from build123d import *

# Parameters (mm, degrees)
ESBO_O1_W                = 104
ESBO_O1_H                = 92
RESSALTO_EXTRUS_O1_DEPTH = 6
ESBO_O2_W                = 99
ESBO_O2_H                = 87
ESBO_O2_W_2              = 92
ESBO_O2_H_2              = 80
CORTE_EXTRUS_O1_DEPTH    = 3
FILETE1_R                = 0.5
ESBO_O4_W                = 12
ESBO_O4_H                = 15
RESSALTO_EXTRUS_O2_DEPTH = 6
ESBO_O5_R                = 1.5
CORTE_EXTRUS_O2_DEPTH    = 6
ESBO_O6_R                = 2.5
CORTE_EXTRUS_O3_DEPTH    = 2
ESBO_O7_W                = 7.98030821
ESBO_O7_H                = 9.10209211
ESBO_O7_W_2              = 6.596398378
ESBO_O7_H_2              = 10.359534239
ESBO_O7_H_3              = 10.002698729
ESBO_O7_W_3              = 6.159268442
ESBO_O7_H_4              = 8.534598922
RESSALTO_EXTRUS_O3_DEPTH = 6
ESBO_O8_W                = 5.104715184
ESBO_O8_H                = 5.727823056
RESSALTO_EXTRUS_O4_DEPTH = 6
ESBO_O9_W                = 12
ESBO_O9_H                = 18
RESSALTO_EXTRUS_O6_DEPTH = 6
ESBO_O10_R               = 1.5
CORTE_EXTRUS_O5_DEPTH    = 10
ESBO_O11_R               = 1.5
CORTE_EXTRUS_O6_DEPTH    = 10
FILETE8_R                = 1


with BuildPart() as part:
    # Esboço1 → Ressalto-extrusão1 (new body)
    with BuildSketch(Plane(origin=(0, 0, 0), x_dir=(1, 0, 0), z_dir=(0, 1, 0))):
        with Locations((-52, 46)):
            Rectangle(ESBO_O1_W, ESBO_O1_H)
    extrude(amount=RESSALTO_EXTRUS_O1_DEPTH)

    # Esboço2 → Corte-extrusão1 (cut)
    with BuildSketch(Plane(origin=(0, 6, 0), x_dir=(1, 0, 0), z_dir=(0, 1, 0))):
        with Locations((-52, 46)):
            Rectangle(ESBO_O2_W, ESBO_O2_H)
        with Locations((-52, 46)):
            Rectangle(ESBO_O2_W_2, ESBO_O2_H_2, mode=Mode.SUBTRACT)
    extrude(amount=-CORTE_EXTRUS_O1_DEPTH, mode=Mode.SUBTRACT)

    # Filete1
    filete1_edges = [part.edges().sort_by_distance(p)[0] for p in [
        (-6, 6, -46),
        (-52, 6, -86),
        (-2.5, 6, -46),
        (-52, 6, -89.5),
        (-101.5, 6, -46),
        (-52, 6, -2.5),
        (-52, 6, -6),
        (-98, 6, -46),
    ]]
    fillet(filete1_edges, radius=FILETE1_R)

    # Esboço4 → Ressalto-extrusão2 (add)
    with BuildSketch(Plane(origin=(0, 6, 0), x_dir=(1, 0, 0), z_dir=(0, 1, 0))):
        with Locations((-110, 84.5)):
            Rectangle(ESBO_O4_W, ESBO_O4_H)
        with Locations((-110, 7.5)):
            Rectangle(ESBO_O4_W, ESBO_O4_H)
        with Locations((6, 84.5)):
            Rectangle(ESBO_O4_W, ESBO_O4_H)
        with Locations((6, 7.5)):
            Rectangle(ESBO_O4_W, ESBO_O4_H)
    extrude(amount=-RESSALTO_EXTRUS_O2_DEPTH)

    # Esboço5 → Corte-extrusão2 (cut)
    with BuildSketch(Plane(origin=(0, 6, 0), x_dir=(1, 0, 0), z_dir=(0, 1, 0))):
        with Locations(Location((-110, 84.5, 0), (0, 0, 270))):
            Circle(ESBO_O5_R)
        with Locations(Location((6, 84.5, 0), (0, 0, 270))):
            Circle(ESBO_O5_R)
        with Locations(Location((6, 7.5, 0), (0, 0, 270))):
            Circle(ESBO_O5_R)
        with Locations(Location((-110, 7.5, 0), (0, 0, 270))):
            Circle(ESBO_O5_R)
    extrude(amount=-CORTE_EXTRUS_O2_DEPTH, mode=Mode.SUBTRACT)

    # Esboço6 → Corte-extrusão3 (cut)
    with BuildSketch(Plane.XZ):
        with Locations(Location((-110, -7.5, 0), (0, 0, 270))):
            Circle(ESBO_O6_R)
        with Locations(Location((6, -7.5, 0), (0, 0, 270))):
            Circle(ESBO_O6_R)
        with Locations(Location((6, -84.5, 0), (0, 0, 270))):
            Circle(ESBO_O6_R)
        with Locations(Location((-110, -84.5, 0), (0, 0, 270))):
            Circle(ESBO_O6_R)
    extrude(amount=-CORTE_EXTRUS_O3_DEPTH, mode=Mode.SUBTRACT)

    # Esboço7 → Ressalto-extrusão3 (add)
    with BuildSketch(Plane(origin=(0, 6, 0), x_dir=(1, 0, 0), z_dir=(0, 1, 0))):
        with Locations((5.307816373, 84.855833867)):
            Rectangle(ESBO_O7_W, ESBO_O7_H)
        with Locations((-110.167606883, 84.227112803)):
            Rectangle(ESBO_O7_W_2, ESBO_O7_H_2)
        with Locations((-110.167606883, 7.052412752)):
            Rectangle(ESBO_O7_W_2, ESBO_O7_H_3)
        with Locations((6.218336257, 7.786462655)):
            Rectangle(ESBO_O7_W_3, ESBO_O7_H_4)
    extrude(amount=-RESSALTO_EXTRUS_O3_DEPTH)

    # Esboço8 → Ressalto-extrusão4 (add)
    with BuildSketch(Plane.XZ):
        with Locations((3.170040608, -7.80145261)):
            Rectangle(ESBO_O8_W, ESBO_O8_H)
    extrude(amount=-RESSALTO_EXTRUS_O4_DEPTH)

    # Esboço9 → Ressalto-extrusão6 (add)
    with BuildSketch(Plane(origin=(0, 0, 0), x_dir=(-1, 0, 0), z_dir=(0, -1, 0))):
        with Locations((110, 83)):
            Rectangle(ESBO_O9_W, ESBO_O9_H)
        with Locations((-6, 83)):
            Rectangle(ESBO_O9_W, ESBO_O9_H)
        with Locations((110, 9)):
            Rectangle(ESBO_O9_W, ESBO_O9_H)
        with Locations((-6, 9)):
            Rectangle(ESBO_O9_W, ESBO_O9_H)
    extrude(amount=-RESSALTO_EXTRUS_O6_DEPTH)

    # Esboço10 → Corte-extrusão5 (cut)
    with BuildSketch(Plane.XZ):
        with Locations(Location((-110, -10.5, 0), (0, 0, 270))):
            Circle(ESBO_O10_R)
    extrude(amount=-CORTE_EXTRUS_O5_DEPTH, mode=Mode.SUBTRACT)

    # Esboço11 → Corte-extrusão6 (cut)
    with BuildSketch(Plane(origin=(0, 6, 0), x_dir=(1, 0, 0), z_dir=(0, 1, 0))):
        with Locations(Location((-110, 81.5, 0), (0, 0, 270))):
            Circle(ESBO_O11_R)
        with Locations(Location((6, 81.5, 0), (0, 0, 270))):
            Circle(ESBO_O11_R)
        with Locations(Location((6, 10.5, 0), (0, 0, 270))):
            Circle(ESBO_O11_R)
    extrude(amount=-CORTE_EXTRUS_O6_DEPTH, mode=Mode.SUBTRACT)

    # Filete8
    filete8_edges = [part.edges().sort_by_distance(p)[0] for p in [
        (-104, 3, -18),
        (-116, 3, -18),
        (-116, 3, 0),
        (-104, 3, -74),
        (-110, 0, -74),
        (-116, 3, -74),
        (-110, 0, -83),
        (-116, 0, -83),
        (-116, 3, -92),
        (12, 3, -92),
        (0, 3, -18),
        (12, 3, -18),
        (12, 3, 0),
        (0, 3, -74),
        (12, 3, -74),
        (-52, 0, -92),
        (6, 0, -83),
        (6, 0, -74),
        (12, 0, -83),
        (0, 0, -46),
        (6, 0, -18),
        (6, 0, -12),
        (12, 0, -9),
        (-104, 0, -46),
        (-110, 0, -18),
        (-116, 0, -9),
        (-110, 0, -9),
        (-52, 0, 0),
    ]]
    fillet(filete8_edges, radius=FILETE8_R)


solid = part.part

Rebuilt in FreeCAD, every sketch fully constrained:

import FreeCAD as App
import Part
import Sketcher

V = App.Vector


def edges_at(feature, points):
    """Names of the edges that pass closest to the given points."""
    edges = feature.Shape.Edges
    near = lambda p: min(range(len(edges)), key=lambda i: edges[i].distToShape(Part.Vertex(*p))[0])
    return sorted({f"Edge{near(p) + 1}" for p in points})


def add_polygon(sketch, points):
    """Adds a closed chain of lines whose ends are joined by coincident constraints."""
    first, n = sketch.GeometryCount, len(points)
    for a, b in zip(points, points[1:] + points[:1]):
        sketch.addGeometry(Part.LineSegment(App.Vector(*a, 0), App.Vector(*b, 0)), False)
    for i in range(n):
        sketch.addConstraint(Sketcher.Constraint("Coincident", first + i, 2, first + (i + 1) % n, 1))

doc = App.newDocument("Part")
body = doc.addObject("PartDesign::Body", "Body")

# Sketch on XZ plane
sketch1 = body.newObject("Sketcher::SketchObject", "Sketch")
sketch1.AttachmentSupport = (doc.getObject("XZ_Plane"), [""])
sketch1.MapMode = "FlatFace"
add_polygon(sketch1, [(-104, -92), (-104, 0), (0, 0), (0, -92)])  # lines 0-3
sketch1.addConstraint([
    Sketcher.Constraint("Vertical", 0),
    Sketcher.Constraint("Horizontal", 1),
    Sketcher.Constraint("Vertical", 2),
    Sketcher.Constraint("Horizontal", 3),
    Sketcher.Constraint("Coincident", 1, 2, -1, 1),
    Sketcher.Constraint("DistanceX", 1, 1, 1, 2, 104.0),
    Sketcher.Constraint("DistanceY", 0, 1, 0, 2, 92.0),
])
pad1 = body.newObject("PartDesign::Pad", "Pad")
pad1.Profile = sketch1
pad1.Length = 6
pad1.Reversed = True

# Sketch on XZ plane
sketch2 = body.newObject("Sketcher::SketchObject", "Sketch001")
sketch2.AttachmentSupport = (doc.getObject("XZ_Plane"), [""])
sketch2.MapMode = "FlatFace"
sketch2.AttachmentOffset = App.Placement(V(0, 0, -6), App.Rotation())
add_polygon(sketch2, [(-101.5, -89.5), (-101.5, -2.5), (-2.5, -2.5), (-2.5, -89.5)])  # lines 0-3
add_polygon(sketch2, [(-6, -6), (-98, -6), (-98, -86), (-6, -86)])  # lines 4-7
sketch2.addConstraint([
    Sketcher.Constraint("Vertical", 0),
    Sketcher.Constraint("Horizontal", 1),
    Sketcher.Constraint("Vertical", 2),
    Sketcher.Constraint("Horizontal", 3),
    Sketcher.Constraint("Horizontal", 4),
    Sketcher.Constraint("Vertical", 5),
    Sketcher.Constraint("Horizontal", 6),
    Sketcher.Constraint("Vertical", 7),
    Sketcher.Constraint("DistanceX", 1, 1, 1, 2, 99.0),
    Sketcher.Constraint("DistanceX", 4, 2, 4, 1, 92.0),
    Sketcher.Constraint("DistanceY", 0, 1, 0, 2, 87.0),
    Sketcher.Constraint("DistanceY", 5, 2, 5, 1, 80.0),
    Sketcher.Constraint("DistanceX", 4, 2, -1, 1, 98.0),
    Sketcher.Constraint("DistanceY", 4, 2, -1, 1, 6.0),
    Sketcher.Constraint("DistanceX", 0, 2, -1, 1, 101.5),
    Sketcher.Constraint("DistanceY", 0, 2, -1, 1, 2.5),
])
pocket1 = body.newObject("PartDesign::Pocket", "Pocket")
pocket1.Profile = sketch2
pocket1.Length = 3
pocket1.Reversed = True
doc.recompute()

fillet = body.newObject("PartDesign::Fillet", "Fillet")
fillet.Base = (pocket1, edges_at(pocket1, [
    (-6, 6, -46),
    (-52, 6, -86),
    (-2.5, 6, -46),
    (-52, 6, -89.5),
    (-101.5, 6, -46),
    (-52, 6, -2.5),
    (-52, 6, -6),
    (-98, 6, -46),
]))
fillet.Radius = 0.5

# Sketch on XZ plane
sketch3 = body.newObject("Sketcher::SketchObject", "Sketch002")
sketch3.AttachmentSupport = (doc.getObject("XZ_Plane"), [""])
sketch3.MapMode = "FlatFace"
sketch3.AttachmentOffset = App.Placement(V(0, 0, -6), App.Rotation())
add_polygon(sketch3, [(-116, -92), (-116, -77), (-104, -77), (-104, -92)])  # lines 0-3
add_polygon(sketch3, [(-116, -15), (-116, 0), (-104, 0), (-104, -15)])  # lines 4-7
add_polygon(sketch3, [(0, -92), (0, -77), (12, -77), (12, -92)])  # lines 8-11
add_polygon(sketch3, [(0, -15), (0, 0), (12, 0), (12, -15)])  # lines 12-15
sketch3.addConstraint([
    Sketcher.Constraint("Vertical", 0),
    Sketcher.Constraint("Horizontal", 1),
    Sketcher.Constraint("Vertical", 2),
    Sketcher.Constraint("Horizontal", 3),
    Sketcher.Constraint("Vertical", 4),
    Sketcher.Constraint("Horizontal", 5),
    Sketcher.Constraint("Vertical", 6),
    Sketcher.Constraint("Horizontal", 7),
    Sketcher.Constraint("Vertical", 8),
    Sketcher.Constraint("Horizontal", 9),
    Sketcher.Constraint("Vertical", 10),
    Sketcher.Constraint("Horizontal", 11),
    Sketcher.Constraint("Vertical", 12),
    Sketcher.Constraint("Horizontal", 13),
    Sketcher.Constraint("Vertical", 14),
    Sketcher.Constraint("Horizontal", 15),
    Sketcher.Constraint("Coincident", 12, 2, -1, 1),
    Sketcher.Constraint("PointOnObject", 4, 2, -1),
    Sketcher.Constraint("PointOnObject", 8, 2, -2),
    Sketcher.Constraint("Horizontal", 1, 2, 8, 2),
    Sketcher.Constraint("Horizontal", 3, 2, 10, 2),
    Sketcher.Constraint("Horizontal", 7, 2, 14, 2),
    Sketcher.Constraint("Vertical", 3, 2, 4, 2),
    Sketcher.Constraint("Vertical", 2, 2, 5, 2),
    Sketcher.Constraint("Vertical", 10, 2, 13, 2),
    Sketcher.Constraint("Equal", 7, 9),
    Sketcher.Constraint("Equal", 2, 4),
    Sketcher.Constraint("DistanceX", 1, 1, 1, 2, 12.0),
    Sketcher.Constraint("DistanceY", 0, 1, 0, 2, 15.0),
    Sketcher.Constraint("DistanceX", 0, 2, -1, 1, 116.0),
    Sketcher.Constraint("DistanceY", 0, 2, -1, 1, 77.0),
])
pad2 = body.newObject("PartDesign::Pad", "Pad001")
pad2.Profile = sketch3
pad2.Length = 6

# Sketch on XZ plane
sketch4 = body.newObject("Sketcher::SketchObject", "Sketch003")
sketch4.AttachmentSupport = (doc.getObject("XZ_Plane"), [""])
sketch4.MapMode = "FlatFace"
sketch4.AttachmentOffset = App.Placement(V(0, 0, -6), App.Rotation())
sketch4.addGeometry([
    Part.Circle(V(-110, -84.5, 0), V(0, 0, 1), 1.5),
    Part.Circle(V(6, -84.5, 0), V(0, 0, 1), 1.5),
    Part.Circle(V(6, -7.5, 0), V(0, 0, 1), 1.5),
    Part.Circle(V(-110, -7.5, 0), V(0, 0, 1), 1.5),
], False)
sketch4.addConstraint([
    Sketcher.Constraint("Equal", 0, 1),
    Sketcher.Constraint("Equal", 1, 2),
    Sketcher.Constraint("Equal", 2, 3),
    Sketcher.Constraint("Horizontal", 0, 3, 1, 3),
    Sketcher.Constraint("Horizontal", 2, 3, 3, 3),
    Sketcher.Constraint("Vertical", 1, 3, 2, 3),
    Sketcher.Constraint("Vertical", 0, 3, 3, 3),
    Sketcher.Constraint("Diameter", 0, 3.0),
    Sketcher.Constraint("DistanceX", 0, 3, -1, 1, 110.0),
    Sketcher.Constraint("DistanceX", -1, 1, 1, 3, 6.0),
    Sketcher.Constraint("DistanceY", 1, 3, 2, 3, 77.0),
    Sketcher.Constraint("DistanceY", 0, 3, -1, 1, 84.5),
])
pocket2 = body.newObject("PartDesign::Pocket", "Pocket001")
pocket2.Profile = sketch4
pocket2.Length = 6
pocket2.Reversed = True

# Sketch on XZ plane
sketch5 = body.newObject("Sketcher::SketchObject", "Sketch004")
sketch5.AttachmentSupport = (doc.getObject("XZ_Plane"), [""])
sketch5.MapMode = "FlatFace"
sketch5.addGeometry([
    Part.Circle(V(-110, -7.5, 0), V(0, 0, 1), 2.5),
    Part.Circle(V(6, -7.5, 0), V(0, 0, 1), 2.5),
    Part.Circle(V(6, -84.5, 0), V(0, 0, 1), 2.5),
    Part.Circle(V(-110, -84.5, 0), V(0, 0, 1), 2.5),
], False)
sketch5.addConstraint([
    Sketcher.Constraint("Equal", 0, 1),
    Sketcher.Constraint("Equal", 1, 2),
    Sketcher.Constraint("Equal", 2, 3),
    Sketcher.Constraint("Horizontal", 0, 3, 1, 3),
    Sketcher.Constraint("Horizontal", 2, 3, 3, 3),
    Sketcher.Constraint("Vertical", 1, 3, 2, 3),
    Sketcher.Constraint("Vertical", 0, 3, 3, 3),
    Sketcher.Constraint("Diameter", 0, 5.0),
    Sketcher.Constraint("DistanceX", 0, 3, -1, 1, 110.0),
    Sketcher.Constraint("DistanceX", -1, 1, 1, 3, 6.0),
    Sketcher.Constraint("DistanceY", 2, 3, 1, 3, 77.0),
    Sketcher.Constraint("DistanceY", 0, 3, -1, 1, 7.5),
])
pocket3 = body.newObject("PartDesign::Pocket", "Pocket002")
pocket3.Profile = sketch5
pocket3.Length = 2

# Sketch on XZ plane
sketch6 = body.newObject("Sketcher::SketchObject", "Sketch005")
sketch6.AttachmentSupport = (doc.getObject("XZ_Plane"), [""])
sketch6.MapMode = "FlatFace"
sketch6.AttachmentOffset = App.Placement(V(0, 0, -6), App.Rotation())
add_polygon(sketch6, [(1.317662, -89.40688), (1.317662, -80.304788), (9.29797, -80.304788), (9.29797, -89.40688)])  # lines 0-3
add_polygon(sketch6, [(-113.465806, -89.40688), (-113.465806, -79.047346), (-106.869408, -79.047346), (-106.869408, -89.40688)])  # lines 4-7
add_polygon(sketch6, [(-113.465806, -12.053762), (-113.465806, -2.051063), (-106.869408, -2.051063), (-106.869408, -12.053762)])  # lines 8-11
add_polygon(sketch6, [(3.138702, -12.053762), (3.138702, -3.519163), (9.29797, -3.519163), (9.29797, -12.053762)])  # lines 12-15
sketch6.addConstraint([
    Sketcher.Constraint("Vertical", 0),
    Sketcher.Constraint("Horizontal", 1),
    Sketcher.Constraint("Vertical", 2),
    Sketcher.Constraint("Horizontal", 3),
    Sketcher.Constraint("Vertical", 4),
    Sketcher.Constraint("Horizontal", 5),
    Sketcher.Constraint("Vertical", 6),
    Sketcher.Constraint("Horizontal", 7),
    Sketcher.Constraint("Vertical", 8),
    Sketcher.Constraint("Horizontal", 9),
    Sketcher.Constraint("Vertical", 10),
    Sketcher.Constraint("Horizontal", 11),
    Sketcher.Constraint("Vertical", 12),
    Sketcher.Constraint("Horizontal", 13),
    Sketcher.Constraint("Vertical", 14),
    Sketcher.Constraint("Horizontal", 15),
    Sketcher.Constraint("Horizontal", 3, 2, 6, 2),
    Sketcher.Constraint("Horizontal", 11, 2, 14, 2),
    Sketcher.Constraint("Vertical", 7, 2, 8, 2),
    Sketcher.Constraint("Vertical", 6, 2, 9, 2),
    Sketcher.Constraint("Vertical", 2, 2, 13, 2),
    Sketcher.Constraint("DistanceX", 5, 1, 5, 2, 6.596398),
    Sketcher.Constraint("DistanceY", 8, 1, 8, 2, 10.002699),
    Sketcher.Constraint("DistanceY", 12, 1, 12, 2, 8.534599),
    Sketcher.Constraint("DistanceX", 1, 1, 1, 2, 7.980308),
    Sketcher.Constraint("DistanceX", 13, 1, 13, 2, 6.159268),
    Sketcher.Constraint("DistanceY", 0, 1, 0, 2, 9.102092),
    Sketcher.Constraint("DistanceY", 4, 1, 4, 2, 10.359534),
    Sketcher.Constraint("DistanceX", -1, 1, 1, 2, 9.29797),
    Sketcher.Constraint("DistanceY", 2, 2, -1, 1, 89.40688),
    Sketcher.Constraint("DistanceX", 4, 2, 0, 2, 114.783468),
    Sketcher.Constraint("DistanceY", 8, 2, -1, 1, 2.051063),
])
pad3 = body.newObject("PartDesign::Pad", "Pad002")
pad3.Profile = sketch6
pad3.Length = 6

# Sketch on XZ plane
sketch7 = body.newObject("Sketcher::SketchObject", "Sketch006")
sketch7.AttachmentSupport = (doc.getObject("XZ_Plane"), [""])
sketch7.MapMode = "FlatFace"
add_polygon(sketch7, [(0.617683, -4.937541), (0.617683, -10.665364), (5.722398, -10.665364), (5.722398, -4.937541)])  # lines 0-3
sketch7.addConstraint([
    Sketcher.Constraint("Vertical", 0),
    Sketcher.Constraint("Horizontal", 1),
    Sketcher.Constraint("Vertical", 2),
    Sketcher.Constraint("Horizontal", 3),
    Sketcher.Constraint("DistanceX", -1, 1, 1, 2, 5.722398),
    Sketcher.Constraint("DistanceX", 1, 1, 1, 2, 5.104715),
    Sketcher.Constraint("DistanceY", 0, 2, 0, 1, 5.727823),
    Sketcher.Constraint("DistanceY", 2, 2, -1, 1, 4.937541),
])
pad4 = body.newObject("PartDesign::Pad", "Pad003")
pad4.Profile = sketch7
pad4.Length = 6
pad4.Reversed = True

# Sketch on XZ plane
sketch8 = body.newObject("Sketcher::SketchObject", "Sketch007")
sketch8.AttachmentSupport = (doc.getObject("XZ_Plane"), [""])
sketch8.MapMode = "FlatFace"
add_polygon(sketch8, [(-104, -92), (-104, -74), (-116, -74), (-116, -92)])  # lines 0-3
add_polygon(sketch8, [(12, -92), (12, -74), (0, -74), (0, -92)])  # lines 4-7
add_polygon(sketch8, [(-104, -18), (-104, 0), (-116, 0), (-116, -18)])  # lines 8-11
add_polygon(sketch8, [(12, -18), (12, 0), (0, 0), (0, -18)])  # lines 12-15
sketch8.addConstraint([
    Sketcher.Constraint("Vertical", 0),
    Sketcher.Constraint("Horizontal", 1),
    Sketcher.Constraint("Vertical", 2),
    Sketcher.Constraint("Horizontal", 3),
    Sketcher.Constraint("Vertical", 4),
    Sketcher.Constraint("Horizontal", 5),
    Sketcher.Constraint("Vertical", 6),
    Sketcher.Constraint("Horizontal", 7),
    Sketcher.Constraint("Vertical", 8),
    Sketcher.Constraint("Horizontal", 9),
    Sketcher.Constraint("Vertical", 10),
    Sketcher.Constraint("Horizontal", 11),
    Sketcher.Constraint("Vertical", 12),
    Sketcher.Constraint("Horizontal", 13),
    Sketcher.Constraint("Vertical", 14),
    Sketcher.Constraint("Horizontal", 15),
    Sketcher.Constraint("Coincident", 13, 2, -1, 1),
    Sketcher.Constraint("PointOnObject", 5, 2, -2),
    Sketcher.Constraint("PointOnObject", 8, 2, -1),
    Sketcher.Constraint("Horizontal", 1, 2, 4, 2),
    Sketcher.Constraint("Horizontal", 3, 2, 6, 2),
    Sketcher.Constraint("Horizontal", 11, 2, 14, 2),
    Sketcher.Constraint("Vertical", 3, 2, 8, 2),
    Sketcher.Constraint("Vertical", 2, 2, 9, 2),
    Sketcher.Constraint("Vertical", 7, 2, 12, 2),
    Sketcher.Constraint("Equal", 3, 5),
    Sketcher.Constraint("Equal", 6, 8),
    Sketcher.Constraint("DistanceX", 1, 2, 1, 1, 12.0),
    Sketcher.Constraint("DistanceY", 0, 1, 0, 2, 18.0),
    Sketcher.Constraint("DistanceX", 0, 2, -1, 1, 104.0),
    Sketcher.Constraint("DistanceY", 0, 2, -1, 1, 74.0),
])
pad5 = body.newObject("PartDesign::Pad", "Pad004")
pad5.Profile = sketch8
pad5.Length = 6
pad5.Reversed = True

# Sketch on XZ plane
sketch9 = body.newObject("Sketcher::SketchObject", "Sketch008")
sketch9.AttachmentSupport = (doc.getObject("XZ_Plane"), [""])
sketch9.MapMode = "FlatFace"
sketch9.addGeometry(Part.Circle(V(-110, -10.5, 0), V(0, 0, 1), 1.5), False)
sketch9.addConstraint([
    Sketcher.Constraint("Diameter", 0, 3.0),
    Sketcher.Constraint("DistanceX", 0, 3, -1, 1, 110.0),
    Sketcher.Constraint("DistanceY", 0, 3, -1, 1, 10.5),
])
pocket4 = body.newObject("PartDesign::Pocket", "Pocket003")
pocket4.Profile = sketch9
pocket4.Length = 10

# Sketch on XZ plane
sketch10 = body.newObject("Sketcher::SketchObject", "Sketch009")
sketch10.AttachmentSupport = (doc.getObject("XZ_Plane"), [""])
sketch10.MapMode = "FlatFace"
sketch10.AttachmentOffset = App.Placement(V(0, 0, -6), App.Rotation())
sketch10.addGeometry([
    Part.Circle(V(-110, -81.5, 0), V(0, 0, 1), 1.5),
    Part.Circle(V(6, -81.5, 0), V(0, 0, 1), 1.5),
    Part.Circle(V(6, -10.5, 0), V(0, 0, 1), 1.5),
], False)
sketch10.addConstraint([
    Sketcher.Constraint("Equal", 0, 1),
    Sketcher.Constraint("Equal", 1, 2),
    Sketcher.Constraint("Horizontal", 0, 3, 1, 3),
    Sketcher.Constraint("Vertical", 1, 3, 2, 3),
    Sketcher.Constraint("Diameter", 0, 3.0),
    Sketcher.Constraint("DistanceX", 0, 3, -1, 1, 110.0),
    Sketcher.Constraint("DistanceX", -1, 1, 1, 3, 6.0),
    Sketcher.Constraint("DistanceY", 1, 3, 2, 3, 71.0),
    Sketcher.Constraint("DistanceY", 0, 3, -1, 1, 81.5),
])
pocket5 = body.newObject("PartDesign::Pocket", "Pocket004")
pocket5.Profile = sketch10
pocket5.Length = 10
pocket5.Reversed = True
doc.recompute()

fillet2 = body.newObject("PartDesign::Fillet", "Fillet001")
fillet2.Base = (pocket5, edges_at(pocket5, [
    (-104, 3, -18),
    (-116, 3, -18),
    (-116, 3, 0),
    (-104, 3, -74),
    (-110, 0, -74),
    (-116, 3, -74),
    (-110, 0, -83),
    (-116, 0, -83),
    (-116, 3, -92),
    (12, 3, -92),
    (0, 3, -18),
    (12, 3, -18),
    (12, 3, 0),
    (0, 3, -74),
    (12, 3, -74),
    (-52, 0, -92),
    (6, 0, -83),
    (6, 0, -74),
    (12, 0, -83),
    (0, 0, -46),
    (6, 0, -18),
    (6, 0, -12),
    (12, 0, -9),
    (-104, 0, -46),
    (-110, 0, -18),
    (-116, 0, -9),
    (-110, 0, -9),
    (-52, 0, 0),
]))
fillet2.Radius = 1

doc.recompute()
